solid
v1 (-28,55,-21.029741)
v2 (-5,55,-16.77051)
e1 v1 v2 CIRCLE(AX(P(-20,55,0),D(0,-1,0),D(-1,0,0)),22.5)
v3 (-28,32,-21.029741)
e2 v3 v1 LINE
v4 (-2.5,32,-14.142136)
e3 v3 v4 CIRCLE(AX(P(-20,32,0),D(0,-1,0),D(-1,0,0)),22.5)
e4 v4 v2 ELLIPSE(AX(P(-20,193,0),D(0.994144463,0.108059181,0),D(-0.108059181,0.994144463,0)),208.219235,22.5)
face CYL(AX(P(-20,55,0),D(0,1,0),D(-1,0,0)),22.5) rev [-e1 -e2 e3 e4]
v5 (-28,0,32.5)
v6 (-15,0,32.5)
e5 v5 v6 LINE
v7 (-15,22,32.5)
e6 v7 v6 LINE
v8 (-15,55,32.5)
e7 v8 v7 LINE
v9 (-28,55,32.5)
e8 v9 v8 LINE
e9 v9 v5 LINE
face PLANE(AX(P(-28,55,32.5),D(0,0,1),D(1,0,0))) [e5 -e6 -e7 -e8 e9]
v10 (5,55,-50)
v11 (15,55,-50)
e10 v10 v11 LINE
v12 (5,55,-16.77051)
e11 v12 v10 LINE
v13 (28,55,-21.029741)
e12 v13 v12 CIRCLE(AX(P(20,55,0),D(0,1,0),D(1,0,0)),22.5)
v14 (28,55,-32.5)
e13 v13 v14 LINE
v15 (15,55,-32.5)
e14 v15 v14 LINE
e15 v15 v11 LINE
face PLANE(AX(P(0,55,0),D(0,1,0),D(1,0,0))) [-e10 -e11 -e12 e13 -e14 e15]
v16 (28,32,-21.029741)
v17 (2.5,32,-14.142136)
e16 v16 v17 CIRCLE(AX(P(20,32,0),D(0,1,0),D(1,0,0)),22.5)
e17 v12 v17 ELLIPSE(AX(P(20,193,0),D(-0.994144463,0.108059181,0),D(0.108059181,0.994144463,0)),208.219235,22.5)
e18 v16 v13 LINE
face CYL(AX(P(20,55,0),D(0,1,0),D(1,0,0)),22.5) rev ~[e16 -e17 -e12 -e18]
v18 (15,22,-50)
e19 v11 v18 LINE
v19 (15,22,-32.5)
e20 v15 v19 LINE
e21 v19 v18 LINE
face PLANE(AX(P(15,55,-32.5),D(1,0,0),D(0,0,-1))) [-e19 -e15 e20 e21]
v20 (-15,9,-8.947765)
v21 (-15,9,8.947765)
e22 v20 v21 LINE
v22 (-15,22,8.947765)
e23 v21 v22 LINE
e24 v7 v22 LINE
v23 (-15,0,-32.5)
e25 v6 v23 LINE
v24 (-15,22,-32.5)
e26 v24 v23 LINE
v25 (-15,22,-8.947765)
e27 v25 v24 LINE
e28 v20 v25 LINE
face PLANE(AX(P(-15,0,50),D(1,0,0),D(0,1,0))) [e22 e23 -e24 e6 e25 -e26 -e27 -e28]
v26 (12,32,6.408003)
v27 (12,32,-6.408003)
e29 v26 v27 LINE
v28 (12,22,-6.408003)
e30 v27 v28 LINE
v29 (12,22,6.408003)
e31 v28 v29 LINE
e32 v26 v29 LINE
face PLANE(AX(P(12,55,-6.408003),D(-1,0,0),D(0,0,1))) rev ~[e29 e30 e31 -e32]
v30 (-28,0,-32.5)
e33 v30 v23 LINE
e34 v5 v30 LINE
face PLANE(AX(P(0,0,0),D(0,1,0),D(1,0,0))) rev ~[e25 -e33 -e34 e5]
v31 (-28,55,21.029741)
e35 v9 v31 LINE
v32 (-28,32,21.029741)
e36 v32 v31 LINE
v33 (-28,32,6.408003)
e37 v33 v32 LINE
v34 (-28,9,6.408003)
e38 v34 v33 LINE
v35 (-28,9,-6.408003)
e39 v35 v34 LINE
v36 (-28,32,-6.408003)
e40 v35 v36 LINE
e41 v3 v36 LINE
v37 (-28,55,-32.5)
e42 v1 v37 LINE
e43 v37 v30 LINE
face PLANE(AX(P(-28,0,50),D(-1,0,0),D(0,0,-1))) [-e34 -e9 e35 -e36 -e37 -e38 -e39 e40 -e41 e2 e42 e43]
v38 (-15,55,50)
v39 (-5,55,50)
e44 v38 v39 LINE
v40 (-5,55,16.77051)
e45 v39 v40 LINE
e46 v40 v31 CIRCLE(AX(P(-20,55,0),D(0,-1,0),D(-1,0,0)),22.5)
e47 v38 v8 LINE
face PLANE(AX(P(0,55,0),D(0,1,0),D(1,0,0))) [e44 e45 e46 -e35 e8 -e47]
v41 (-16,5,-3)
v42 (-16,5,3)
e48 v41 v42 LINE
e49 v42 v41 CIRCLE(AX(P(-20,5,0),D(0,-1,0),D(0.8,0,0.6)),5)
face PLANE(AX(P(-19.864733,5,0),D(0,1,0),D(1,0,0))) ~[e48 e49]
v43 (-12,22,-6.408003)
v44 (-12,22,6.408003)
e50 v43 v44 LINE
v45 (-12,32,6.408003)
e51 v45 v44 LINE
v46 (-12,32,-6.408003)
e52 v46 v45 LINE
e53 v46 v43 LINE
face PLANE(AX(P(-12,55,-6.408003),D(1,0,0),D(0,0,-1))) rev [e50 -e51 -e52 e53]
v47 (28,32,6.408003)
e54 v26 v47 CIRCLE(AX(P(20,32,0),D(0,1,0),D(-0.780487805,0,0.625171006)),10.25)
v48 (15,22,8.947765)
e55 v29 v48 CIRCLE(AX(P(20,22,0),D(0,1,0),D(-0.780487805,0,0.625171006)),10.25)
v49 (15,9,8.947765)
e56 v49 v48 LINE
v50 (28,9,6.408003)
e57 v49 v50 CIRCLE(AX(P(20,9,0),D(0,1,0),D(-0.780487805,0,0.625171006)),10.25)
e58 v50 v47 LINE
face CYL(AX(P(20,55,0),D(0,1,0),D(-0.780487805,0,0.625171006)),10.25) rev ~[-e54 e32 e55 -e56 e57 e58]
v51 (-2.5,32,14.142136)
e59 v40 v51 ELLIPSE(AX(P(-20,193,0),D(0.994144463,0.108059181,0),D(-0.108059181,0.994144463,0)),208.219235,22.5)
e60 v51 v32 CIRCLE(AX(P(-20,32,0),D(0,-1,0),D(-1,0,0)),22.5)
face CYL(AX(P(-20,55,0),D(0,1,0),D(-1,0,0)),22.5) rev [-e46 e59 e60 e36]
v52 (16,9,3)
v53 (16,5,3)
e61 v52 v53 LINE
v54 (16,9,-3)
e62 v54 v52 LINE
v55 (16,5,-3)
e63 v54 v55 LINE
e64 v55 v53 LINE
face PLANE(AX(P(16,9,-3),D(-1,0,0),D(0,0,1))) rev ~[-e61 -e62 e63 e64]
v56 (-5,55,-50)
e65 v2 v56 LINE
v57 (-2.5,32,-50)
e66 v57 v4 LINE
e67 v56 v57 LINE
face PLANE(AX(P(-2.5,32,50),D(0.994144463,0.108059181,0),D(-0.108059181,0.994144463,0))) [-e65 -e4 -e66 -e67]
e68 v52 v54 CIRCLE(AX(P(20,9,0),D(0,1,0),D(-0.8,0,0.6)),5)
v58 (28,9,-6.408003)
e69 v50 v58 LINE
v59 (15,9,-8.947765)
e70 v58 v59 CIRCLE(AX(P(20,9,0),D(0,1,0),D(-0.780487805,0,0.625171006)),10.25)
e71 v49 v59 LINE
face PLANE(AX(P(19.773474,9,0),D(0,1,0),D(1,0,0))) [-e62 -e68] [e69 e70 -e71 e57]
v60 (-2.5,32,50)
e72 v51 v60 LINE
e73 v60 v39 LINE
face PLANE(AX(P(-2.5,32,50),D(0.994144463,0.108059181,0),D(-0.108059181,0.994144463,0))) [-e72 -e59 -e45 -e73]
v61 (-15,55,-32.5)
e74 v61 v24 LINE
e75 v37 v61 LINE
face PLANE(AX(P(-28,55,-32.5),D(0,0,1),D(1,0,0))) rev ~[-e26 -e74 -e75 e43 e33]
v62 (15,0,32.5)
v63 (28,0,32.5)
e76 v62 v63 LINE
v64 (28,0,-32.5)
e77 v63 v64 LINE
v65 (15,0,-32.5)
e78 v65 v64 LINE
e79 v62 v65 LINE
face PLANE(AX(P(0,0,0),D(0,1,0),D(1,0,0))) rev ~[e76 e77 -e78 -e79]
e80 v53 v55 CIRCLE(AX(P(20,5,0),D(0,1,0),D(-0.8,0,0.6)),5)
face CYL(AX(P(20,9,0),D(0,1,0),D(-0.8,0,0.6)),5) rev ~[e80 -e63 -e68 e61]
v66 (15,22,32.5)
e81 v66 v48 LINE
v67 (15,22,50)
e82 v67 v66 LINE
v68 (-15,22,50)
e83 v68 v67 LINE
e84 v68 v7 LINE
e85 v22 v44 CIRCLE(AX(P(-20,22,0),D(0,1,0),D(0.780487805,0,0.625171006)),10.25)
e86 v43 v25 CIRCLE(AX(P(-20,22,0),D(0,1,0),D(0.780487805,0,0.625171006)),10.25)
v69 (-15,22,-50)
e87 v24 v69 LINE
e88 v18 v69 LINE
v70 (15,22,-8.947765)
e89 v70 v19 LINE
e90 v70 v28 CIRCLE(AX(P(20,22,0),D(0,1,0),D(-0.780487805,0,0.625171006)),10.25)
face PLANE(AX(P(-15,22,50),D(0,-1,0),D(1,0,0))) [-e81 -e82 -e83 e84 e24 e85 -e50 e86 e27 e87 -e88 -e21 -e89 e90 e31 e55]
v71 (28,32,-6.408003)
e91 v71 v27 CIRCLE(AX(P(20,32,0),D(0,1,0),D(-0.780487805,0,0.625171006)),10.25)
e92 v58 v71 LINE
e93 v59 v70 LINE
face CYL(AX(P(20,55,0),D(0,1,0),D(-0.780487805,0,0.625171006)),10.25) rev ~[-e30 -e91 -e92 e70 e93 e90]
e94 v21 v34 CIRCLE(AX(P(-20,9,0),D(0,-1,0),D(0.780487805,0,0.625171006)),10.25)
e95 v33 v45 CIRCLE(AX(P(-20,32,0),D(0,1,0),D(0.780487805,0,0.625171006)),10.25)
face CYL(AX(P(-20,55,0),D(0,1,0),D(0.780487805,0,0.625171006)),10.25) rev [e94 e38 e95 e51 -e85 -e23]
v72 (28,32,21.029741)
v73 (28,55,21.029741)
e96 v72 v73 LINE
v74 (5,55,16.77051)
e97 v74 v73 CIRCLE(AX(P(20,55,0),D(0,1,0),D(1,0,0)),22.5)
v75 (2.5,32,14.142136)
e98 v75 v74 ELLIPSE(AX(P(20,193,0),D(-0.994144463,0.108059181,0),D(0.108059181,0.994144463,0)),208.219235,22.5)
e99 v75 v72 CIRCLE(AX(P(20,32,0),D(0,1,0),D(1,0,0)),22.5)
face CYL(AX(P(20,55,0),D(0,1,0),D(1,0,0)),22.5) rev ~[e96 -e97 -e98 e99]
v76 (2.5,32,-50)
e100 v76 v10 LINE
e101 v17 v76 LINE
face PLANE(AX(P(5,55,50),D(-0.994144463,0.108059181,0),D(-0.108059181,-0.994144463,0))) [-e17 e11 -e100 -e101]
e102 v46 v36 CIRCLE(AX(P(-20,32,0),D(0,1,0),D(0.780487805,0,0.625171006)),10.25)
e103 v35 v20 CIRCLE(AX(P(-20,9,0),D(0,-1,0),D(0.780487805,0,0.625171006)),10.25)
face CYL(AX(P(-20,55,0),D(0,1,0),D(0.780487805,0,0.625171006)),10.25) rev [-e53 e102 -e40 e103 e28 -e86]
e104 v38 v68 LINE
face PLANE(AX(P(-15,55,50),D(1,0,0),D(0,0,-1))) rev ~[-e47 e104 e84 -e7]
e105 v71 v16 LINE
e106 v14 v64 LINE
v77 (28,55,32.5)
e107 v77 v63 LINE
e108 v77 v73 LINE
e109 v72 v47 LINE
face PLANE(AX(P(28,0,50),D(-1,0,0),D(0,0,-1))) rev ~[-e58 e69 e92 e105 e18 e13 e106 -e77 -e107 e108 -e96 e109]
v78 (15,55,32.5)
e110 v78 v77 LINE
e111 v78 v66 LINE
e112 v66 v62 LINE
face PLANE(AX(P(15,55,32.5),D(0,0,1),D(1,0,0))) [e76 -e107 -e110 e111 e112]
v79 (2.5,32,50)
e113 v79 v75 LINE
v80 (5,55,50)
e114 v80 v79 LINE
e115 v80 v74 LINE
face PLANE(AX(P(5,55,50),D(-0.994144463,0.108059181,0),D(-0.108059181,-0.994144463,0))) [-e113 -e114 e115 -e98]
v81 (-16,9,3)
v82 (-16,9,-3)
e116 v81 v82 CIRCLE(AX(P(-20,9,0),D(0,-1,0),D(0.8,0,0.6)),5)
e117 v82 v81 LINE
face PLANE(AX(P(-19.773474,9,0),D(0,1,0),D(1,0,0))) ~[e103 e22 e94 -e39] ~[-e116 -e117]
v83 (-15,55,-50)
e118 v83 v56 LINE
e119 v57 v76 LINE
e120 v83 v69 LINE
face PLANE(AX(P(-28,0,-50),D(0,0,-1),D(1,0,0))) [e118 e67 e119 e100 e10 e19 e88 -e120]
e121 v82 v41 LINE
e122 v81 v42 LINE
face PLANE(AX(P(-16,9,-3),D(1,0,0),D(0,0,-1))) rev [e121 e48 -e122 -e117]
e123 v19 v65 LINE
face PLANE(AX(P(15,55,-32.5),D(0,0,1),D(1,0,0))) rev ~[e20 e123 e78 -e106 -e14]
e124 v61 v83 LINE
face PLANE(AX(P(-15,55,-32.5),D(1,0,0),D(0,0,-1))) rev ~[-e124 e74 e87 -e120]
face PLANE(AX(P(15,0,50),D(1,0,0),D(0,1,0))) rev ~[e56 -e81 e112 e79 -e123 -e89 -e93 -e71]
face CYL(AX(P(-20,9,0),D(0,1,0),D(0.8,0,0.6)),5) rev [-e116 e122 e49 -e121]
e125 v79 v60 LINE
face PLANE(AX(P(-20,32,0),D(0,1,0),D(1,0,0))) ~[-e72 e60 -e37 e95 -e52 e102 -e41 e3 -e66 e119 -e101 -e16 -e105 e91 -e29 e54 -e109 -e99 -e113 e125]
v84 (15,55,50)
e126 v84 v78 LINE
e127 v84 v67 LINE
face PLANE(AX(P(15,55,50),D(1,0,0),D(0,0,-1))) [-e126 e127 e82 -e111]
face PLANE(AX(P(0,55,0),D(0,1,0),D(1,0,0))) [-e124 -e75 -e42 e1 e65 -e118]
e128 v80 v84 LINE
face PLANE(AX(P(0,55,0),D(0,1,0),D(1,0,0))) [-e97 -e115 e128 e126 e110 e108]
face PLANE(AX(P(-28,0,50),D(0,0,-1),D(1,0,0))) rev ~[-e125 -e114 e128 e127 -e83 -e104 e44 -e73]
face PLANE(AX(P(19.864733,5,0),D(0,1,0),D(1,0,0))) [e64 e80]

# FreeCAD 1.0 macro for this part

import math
import FreeCAD as App
import Part
import Sketcher
from FreeCAD import Vector

doc = App.newDocument("Part")
body = doc.addObject("PartDesign::Body", "Body")

sketch1 = doc.addObject("Sketcher::SketchObject", "Sketch")
body.addObject(sketch1)
sketch1.AttachmentSupport = (doc.XZ_Plane, [""])
sketch1.MapMode = "FlatFace"
sketch1.addGeometry([
    Part.LineSegment(Vector(-28, -50, 0), Vector(-28, 50, 0)),
    Part.LineSegment(Vector(-28, 50, 0), Vector(28, 50, 0)),
    Part.LineSegment(Vector(28, 50, 0), Vector(28, -50, 0)),
    Part.LineSegment(Vector(28, -50, 0), Vector(-28, -50, 0)),
], False)
sketch1.addConstraint([
    Sketcher.Constraint("Coincident", 0, 2, 1, 1),
    Sketcher.Constraint("Coincident", 1, 2, 2, 1),
    Sketcher.Constraint("Coincident", 2, 2, 3, 1),
    Sketcher.Constraint("Coincident", 3, 2, 0, 1),
    Sketcher.Constraint("Vertical", 0),
    Sketcher.Constraint("Horizontal", 1),
    Sketcher.Constraint("Vertical", 2),
    Sketcher.Constraint("Horizontal", 3),
    Sketcher.Constraint("Symmetric", 0, 2, 2, 2, -1, 1),
    Sketcher.Constraint("DistanceX", 1, 1, 1, 2, 56.0),
    Sketcher.Constraint("DistanceY", 0, 1, 0, 2, 100.0),
])
pad1 = doc.addObject("PartDesign::Pad", "Pad")
body.addObject(pad1)
pad1.Profile = sketch1
pad1.Length = 55
pad1.Reversed = True

sketch2 = doc.addObject("Sketcher::SketchObject", "Sketch001")
body.addObject(sketch2)
sketch2.AttachmentSupport = (doc.XY_Plane, [""])
sketch2.MapMode = "FlatFace"
sketch2.AttachmentOffset = App.Placement(Vector(0, 0, 50), App.Rotation())
sketch2.addGeometry([
    Part.LineSegment(Vector(-5, 55, 0), Vector(-2, 32, 0)),
    Part.LineSegment(Vector(-2, 32, 0), Vector(2, 32, 0)),
    Part.LineSegment(Vector(2, 32, 0), Vector(5, 55, 0)),
    Part.LineSegment(Vector(5, 55, 0), Vector(-5, 55, 0)),
], False)
sketch2.addConstraint([
    Sketcher.Constraint("Coincident", 0, 2, 1, 1),
    Sketcher.Constraint("Coincident", 1, 2, 2, 1),
    Sketcher.Constraint("Coincident", 2, 2, 3, 1),
    Sketcher.Constraint("Coincident", 3, 2, 0, 1),
    Sketcher.Constraint("Horizontal", 1),
    Sketcher.Constraint("Horizontal", 3),
    Sketcher.Constraint("Equal", 0, 2),
    Sketcher.Constraint("DistanceX", 1, 1, 1, 2, 5.0),
    Sketcher.Constraint("DistanceX", 3, 2, 3, 1, 10.0),
    Sketcher.Constraint("DistanceY", -1, 1, 0, 2, 32.0),
    Sketcher.Constraint("DistanceX", -1, 1, 2, 2, 5.0),
    Sketcher.Constraint("DistanceY", -1, 1, 2, 2, 55.0),
])
pocket1 = doc.addObject("PartDesign::Pocket", "Pocket")
body.addObject(pocket1)
pocket1.Profile = sketch2
pocket1.Type = "ThroughAll"

sketch3 = doc.addObject("Sketcher::SketchObject", "Sketch002")
body.addObject(sketch3)
sketch3.AttachmentSupport = (doc.XZ_Plane, [""])
sketch3.MapMode = "FlatFace"
sketch3.AttachmentOffset = App.Placement(Vector(0, 0, -55), App.Rotation())
sketch3.addGeometry([
    Part.Circle(Vector(20, 0, 0), Vector(0, 0, 1), 22),
    Part.Circle(Vector(20, 0, 0), Vector(0, 0, 1), 10),
], False)
sketch3.addConstraint([
    Sketcher.Constraint("Coincident", 1, 3, 0, 3),
    Sketcher.Constraint("PointOnObject", 0, 3, -1),
    Sketcher.Constraint("Diameter", 0, 45.0),
    Sketcher.Constraint("Diameter", 1, 20.0),
    Sketcher.Constraint("DistanceX", -1, 1, 0, 3, 20.0),
])
pocket2 = doc.addObject("PartDesign::Pocket", "Pocket001")
body.addObject(pocket2)
pocket2.Profile = sketch3
pocket2.Length = 23
pocket2.Reversed = True

sketch4 = doc.addObject("Sketcher::SketchObject", "Sketch003")
body.addObject(sketch4)
sketch4.AttachmentSupport = (doc.XZ_Plane, [""])
sketch4.MapMode = "FlatFace"
sketch4.AttachmentOffset = App.Placement(Vector(0, 0, -55), App.Rotation())
sketch4.addGeometry([
    Part.LineSegment(Vector(12, -6, 0), Vector(12, 6, 0)),
    Part.ArcOfCircle(Part.Circle(Vector(20, 0, 0), Vector(0, 0, 1), 10), math.radians(-141), math.radians(141)),
], False)
sketch4.addConstraint([
    Sketcher.Constraint("Coincident", 0, 1, 1, 1),
    Sketcher.Constraint("Coincident", 1, 2, 0, 2),
    Sketcher.Constraint("Vertical", 0),
    Sketcher.Constraint("PointOnObject", 1, 3, -1),
    Sketcher.Constraint("Radius", 1, 10.25),
    Sketcher.Constraint("DistanceX", -1, 1, 1, 3, 20.0),
    Sketcher.Constraint("DistanceX", -1, 1, 0, 1, 12.0),
])
pocket3 = doc.addObject("PartDesign::Pocket", "Pocket002")
body.addObject(pocket3)
pocket3.Profile = sketch4
pocket3.Length = 46
pocket3.Reversed = True

sketch5 = doc.addObject("Sketcher::SketchObject", "Sketch004")
body.addObject(sketch5)
sketch5.AttachmentSupport = (doc.XZ_Plane, [""])
sketch5.MapMode = "FlatFace"
sketch5.AttachmentOffset = App.Placement(Vector(0, 0, -9), App.Rotation())
sketch5.addGeometry([
    Part.LineSegment(Vector(16, -3, 0), Vector(16, 3, 0)),
    Part.ArcOfCircle(Part.Circle(Vector(20, 0, 0), Vector(0, 0, 1), 5), math.radians(-143), math.radians(143)),
], False)
sketch5.addConstraint([
    Sketcher.Constraint("Coincident", 0, 1, 1, 1),
    Sketcher.Constraint("Coincident", 1, 2, 0, 2),
    Sketcher.Constraint("Vertical", 0),
    Sketcher.Constraint("PointOnObject", 1, 3, -1),
    Sketcher.Constraint("Radius", 1, 5.0),
    Sketcher.Constraint("DistanceY", 0, 1, 0, 2, 6.0),
    Sketcher.Constraint("DistanceX", -1, 1, 1, 3, 20.0),
])
pocket4 = doc.addObject("PartDesign::Pocket", "Pocket003")
body.addObject(pocket4)
pocket4.Profile = sketch5
pocket4.Length = 4
pocket4.Reversed = True

sketch6 = doc.addObject("Sketcher::SketchObject", "Sketch005")
body.addObject(sketch6)
sketch6.AttachmentSupport = (doc.XZ_Plane, [""])
sketch6.MapMode = "FlatFace"
sketch6.AttachmentOffset = App.Placement(Vector(0, 0, -55), App.Rotation())
sketch6.addGeometry([
    Part.LineSegment(Vector(12, 6, 0), Vector(12, -6, 0)),
    Part.ArcOfCircle(Part.Circle(Vector(20, 0, 0), Vector(0, 0, 1), 10), math.radians(140), math.radians(220)),
], False)
sketch6.addConstraint([
    Sketcher.Constraint("Coincident", 0, 1, 1, 1),
    Sketcher.Constraint("Coincident", 1, 2, 0, 2),
    Sketcher.Constraint("Vertical", 0),
    Sketcher.Constraint("PointOnObject", 1, 3, -1),
    Sketcher.Constraint("Radius", 1, 10.0),
    Sketcher.Constraint("DistanceX", -1, 1, 0, 1, 12.0),
    Sketcher.Constraint("DistanceY", 0, 2, 0, 1, 12.816006),
])
pocket5 = doc.addObject("PartDesign::Pocket", "Pocket004")
body.addObject(pocket5)
pocket5.Profile = sketch6
pocket5.Length = 23
pocket5.Reversed = True
doc.recompute()

mirrored = doc.addObject("PartDesign::Mirrored", "Mirrored")
body.addObject(mirrored)
mirrored.Originals = [pocket2, pocket3, pocket4, pocket5]
mirrored.MirrorPlane = (doc.YZ_Plane, [""])
body.Tip = mirrored

sketch7 = doc.addObject("Sketcher::SketchObject", "Sketch006")
body.addObject(sketch7)
sketch7.AttachmentSupport = (doc.XZ_Plane, [""])
sketch7.MapMode = "FlatFace"
sketch7.AttachmentOffset = App.Placement(Vector(0, 0, -55), App.Rotation())
sketch7.addGeometry([
    Part.LineSegment(Vector(-28, -50, 0), Vector(-28, -32, 0)),
    Part.LineSegment(Vector(-28, -32, 0), Vector(-15, -32, 0)),
    Part.LineSegment(Vector(-15, -32, 0), Vector(-15, -50, 0)),
    Part.LineSegment(Vector(-15, -50, 0), Vector(-28, -50, 0)),
    Part.LineSegment(Vector(15, -50, 0), Vector(15, -32, 0)),
    Part.LineSegment(Vector(15, -32, 0), Vector(28, -32, 0)),
    Part.LineSegment(Vector(28, -32, 0), Vector(28, -50, 0)),
    Part.LineSegment(Vector(28, -50, 0), Vector(15, -50, 0)),
    Part.LineSegment(Vector(-28, 32, 0), Vector(-28, 50, 0)),
    Part.LineSegment(Vector(-28, 50, 0), Vector(-15, 50, 0)),
    Part.LineSegment(Vector(-15, 50, 0), Vector(-15, 32, 0)),
    Part.LineSegment(Vector(-15, 32, 0), Vector(-28, 32, 0)),
    Part.LineSegment(Vector(15, 32, 0), Vector(15, 50, 0)),
    Part.LineSegment(Vector(15, 50, 0), Vector(28, 50, 0)),
    Part.LineSegment(Vector(28, 50, 0), Vector(28, 32, 0)),
    Part.LineSegment(Vector(28, 32, 0), Vector(15, 32, 0)),
], False)
sketch7.addConstraint([
    Sketcher.Constraint("Coincident", 0, 2, 1, 1),
    Sketcher.Constraint("Coincident", 1, 2, 2, 1),
    Sketcher.Constraint("Coincident", 2, 2, 3, 1),
    Sketcher.Constraint("Coincident", 3, 2, 0, 1),
    Sketcher.Constraint("Coincident", 4, 2, 5, 1),
    Sketcher.Constraint("Coincident", 5, 2, 6, 1),
    Sketcher.Constraint("Coincident", 6, 2, 7, 1),
    Sketcher.Constraint("Coincident", 7, 2, 4, 1),
    Sketcher.Constraint("Coincident", 8, 2, 9, 1),
    Sketcher.Constraint("Coincident", 9, 2, 10, 1),
    Sketcher.Constraint("Coincident", 10, 2, 11, 1),
    Sketcher.Constraint("Coincident", 11, 2, 8, 1),
    Sketcher.Constraint("Coincident", 12, 2, 13, 1),
    Sketcher.Constraint("Coincident", 13, 2, 14, 1),
    Sketcher.Constraint("Coincident", 14, 2, 15, 1),
    Sketcher.Constraint("Coincident", 15, 2, 12, 1),
    Sketcher.Constraint("Vertical", 0),
    Sketcher.Constraint("Horizontal", 1),
    Sketcher.Constraint("Vertical", 2),
    Sketcher.Constraint("Horizontal", 3),
    Sketcher.Constraint("Vertical", 4),
    Sketcher.Constraint("Horizontal", 5),
    Sketcher.Constraint("Vertical", 6),
    Sketcher.Constraint("Horizontal", 7),
    Sketcher.Constraint("Vertical", 8),
    Sketcher.Constraint("Horizontal", 9),
    Sketcher.Constraint("Vertical", 10),
    Sketcher.Constraint("Horizontal", 11),
    Sketcher.Constraint("Vertical", 12),
    Sketcher.Constraint("Horizontal", 13),
    Sketcher.Constraint("Vertical", 14),
    Sketcher.Constraint("Horizontal", 15),
    Sketcher.Constraint("Symmetric", 6, 2, 8, 2, -1, 1),
    Sketcher.Constraint("Symmetric", 4, 2, 10, 2, -1, 1),
    Sketcher.Constraint("Symmetric", 2, 2, 12, 2, -1, 1),
    Sketcher.Constraint("Symmetric", 0, 2, 14, 2, -1, 1),
    Sketcher.Constraint("Symmetric", 1, 2, 4, 2, -2),
    Sketcher.Constraint("Symmetric", 3, 2, 6, 2, -2),
    Sketcher.Constraint("DistanceX", 1, 1, 1, 2, 13.0),
    Sketcher.Constraint("DistanceY", 0, 1, 0, 2, 17.5),
    Sketcher.Constraint("DistanceX", 0, 2, -1, 1, 28.0),
    Sketcher.Constraint("DistanceY", 2, 2, -1, 1, 50.0),
])
pocket6 = doc.addObject("PartDesign::Pocket", "Pocket005")
body.addObject(pocket6)
pocket6.Profile = sketch7
pocket6.Type = "ThroughAll"
pocket6.Reversed = True

sketch8 = doc.addObject("Sketcher::SketchObject", "Sketch007")
body.addObject(sketch8)
sketch8.AttachmentSupport = (doc.XY_Plane, [""])
sketch8.MapMode = "FlatFace"
sketch8.AttachmentOffset = App.Placement(Vector(0, 0, 50), App.Rotation())
sketch8.addGeometry([
    Part.LineSegment(Vector(-15, 22, 0), Vector(-15, 0, 0)),
    Part.LineSegment(Vector(-15, 0, 0), Vector(15, 0, 0)),
    Part.LineSegment(Vector(15, 0, 0), Vector(15, 22, 0)),
    Part.LineSegment(Vector(15, 22, 0), Vector(-15, 22, 0)),
], False)
sketch8.addConstraint([
    Sketcher.Constraint("Coincident", 0, 2, 1, 1),
    Sketcher.Constraint("Coincident", 1, 2, 2, 1),
    Sketcher.Constraint("Coincident", 2, 2, 3, 1),
    Sketcher.Constraint("Coincident", 3, 2, 0, 1),
    Sketcher.Constraint("Vertical", 0),
    Sketcher.Constraint("Horizontal", 1),
    Sketcher.Constraint("Vertical", 2),
    Sketcher.Constraint("Horizontal", 3),
    Sketcher.Constraint("Symmetric", 0, 2, 1, 2, -1, 1),
    Sketcher.Constraint("DistanceX", 1, 1, 1, 2, 30.0),
    Sketcher.Constraint("DistanceY", 0, 2, 0, 1, 22.0),
])
pocket7 = doc.addObject("PartDesign::Pocket", "Pocket006")
body.addObject(pocket7)
pocket7.Profile = sketch8
pocket7.Type = "ThroughAll"

doc.recompute()
